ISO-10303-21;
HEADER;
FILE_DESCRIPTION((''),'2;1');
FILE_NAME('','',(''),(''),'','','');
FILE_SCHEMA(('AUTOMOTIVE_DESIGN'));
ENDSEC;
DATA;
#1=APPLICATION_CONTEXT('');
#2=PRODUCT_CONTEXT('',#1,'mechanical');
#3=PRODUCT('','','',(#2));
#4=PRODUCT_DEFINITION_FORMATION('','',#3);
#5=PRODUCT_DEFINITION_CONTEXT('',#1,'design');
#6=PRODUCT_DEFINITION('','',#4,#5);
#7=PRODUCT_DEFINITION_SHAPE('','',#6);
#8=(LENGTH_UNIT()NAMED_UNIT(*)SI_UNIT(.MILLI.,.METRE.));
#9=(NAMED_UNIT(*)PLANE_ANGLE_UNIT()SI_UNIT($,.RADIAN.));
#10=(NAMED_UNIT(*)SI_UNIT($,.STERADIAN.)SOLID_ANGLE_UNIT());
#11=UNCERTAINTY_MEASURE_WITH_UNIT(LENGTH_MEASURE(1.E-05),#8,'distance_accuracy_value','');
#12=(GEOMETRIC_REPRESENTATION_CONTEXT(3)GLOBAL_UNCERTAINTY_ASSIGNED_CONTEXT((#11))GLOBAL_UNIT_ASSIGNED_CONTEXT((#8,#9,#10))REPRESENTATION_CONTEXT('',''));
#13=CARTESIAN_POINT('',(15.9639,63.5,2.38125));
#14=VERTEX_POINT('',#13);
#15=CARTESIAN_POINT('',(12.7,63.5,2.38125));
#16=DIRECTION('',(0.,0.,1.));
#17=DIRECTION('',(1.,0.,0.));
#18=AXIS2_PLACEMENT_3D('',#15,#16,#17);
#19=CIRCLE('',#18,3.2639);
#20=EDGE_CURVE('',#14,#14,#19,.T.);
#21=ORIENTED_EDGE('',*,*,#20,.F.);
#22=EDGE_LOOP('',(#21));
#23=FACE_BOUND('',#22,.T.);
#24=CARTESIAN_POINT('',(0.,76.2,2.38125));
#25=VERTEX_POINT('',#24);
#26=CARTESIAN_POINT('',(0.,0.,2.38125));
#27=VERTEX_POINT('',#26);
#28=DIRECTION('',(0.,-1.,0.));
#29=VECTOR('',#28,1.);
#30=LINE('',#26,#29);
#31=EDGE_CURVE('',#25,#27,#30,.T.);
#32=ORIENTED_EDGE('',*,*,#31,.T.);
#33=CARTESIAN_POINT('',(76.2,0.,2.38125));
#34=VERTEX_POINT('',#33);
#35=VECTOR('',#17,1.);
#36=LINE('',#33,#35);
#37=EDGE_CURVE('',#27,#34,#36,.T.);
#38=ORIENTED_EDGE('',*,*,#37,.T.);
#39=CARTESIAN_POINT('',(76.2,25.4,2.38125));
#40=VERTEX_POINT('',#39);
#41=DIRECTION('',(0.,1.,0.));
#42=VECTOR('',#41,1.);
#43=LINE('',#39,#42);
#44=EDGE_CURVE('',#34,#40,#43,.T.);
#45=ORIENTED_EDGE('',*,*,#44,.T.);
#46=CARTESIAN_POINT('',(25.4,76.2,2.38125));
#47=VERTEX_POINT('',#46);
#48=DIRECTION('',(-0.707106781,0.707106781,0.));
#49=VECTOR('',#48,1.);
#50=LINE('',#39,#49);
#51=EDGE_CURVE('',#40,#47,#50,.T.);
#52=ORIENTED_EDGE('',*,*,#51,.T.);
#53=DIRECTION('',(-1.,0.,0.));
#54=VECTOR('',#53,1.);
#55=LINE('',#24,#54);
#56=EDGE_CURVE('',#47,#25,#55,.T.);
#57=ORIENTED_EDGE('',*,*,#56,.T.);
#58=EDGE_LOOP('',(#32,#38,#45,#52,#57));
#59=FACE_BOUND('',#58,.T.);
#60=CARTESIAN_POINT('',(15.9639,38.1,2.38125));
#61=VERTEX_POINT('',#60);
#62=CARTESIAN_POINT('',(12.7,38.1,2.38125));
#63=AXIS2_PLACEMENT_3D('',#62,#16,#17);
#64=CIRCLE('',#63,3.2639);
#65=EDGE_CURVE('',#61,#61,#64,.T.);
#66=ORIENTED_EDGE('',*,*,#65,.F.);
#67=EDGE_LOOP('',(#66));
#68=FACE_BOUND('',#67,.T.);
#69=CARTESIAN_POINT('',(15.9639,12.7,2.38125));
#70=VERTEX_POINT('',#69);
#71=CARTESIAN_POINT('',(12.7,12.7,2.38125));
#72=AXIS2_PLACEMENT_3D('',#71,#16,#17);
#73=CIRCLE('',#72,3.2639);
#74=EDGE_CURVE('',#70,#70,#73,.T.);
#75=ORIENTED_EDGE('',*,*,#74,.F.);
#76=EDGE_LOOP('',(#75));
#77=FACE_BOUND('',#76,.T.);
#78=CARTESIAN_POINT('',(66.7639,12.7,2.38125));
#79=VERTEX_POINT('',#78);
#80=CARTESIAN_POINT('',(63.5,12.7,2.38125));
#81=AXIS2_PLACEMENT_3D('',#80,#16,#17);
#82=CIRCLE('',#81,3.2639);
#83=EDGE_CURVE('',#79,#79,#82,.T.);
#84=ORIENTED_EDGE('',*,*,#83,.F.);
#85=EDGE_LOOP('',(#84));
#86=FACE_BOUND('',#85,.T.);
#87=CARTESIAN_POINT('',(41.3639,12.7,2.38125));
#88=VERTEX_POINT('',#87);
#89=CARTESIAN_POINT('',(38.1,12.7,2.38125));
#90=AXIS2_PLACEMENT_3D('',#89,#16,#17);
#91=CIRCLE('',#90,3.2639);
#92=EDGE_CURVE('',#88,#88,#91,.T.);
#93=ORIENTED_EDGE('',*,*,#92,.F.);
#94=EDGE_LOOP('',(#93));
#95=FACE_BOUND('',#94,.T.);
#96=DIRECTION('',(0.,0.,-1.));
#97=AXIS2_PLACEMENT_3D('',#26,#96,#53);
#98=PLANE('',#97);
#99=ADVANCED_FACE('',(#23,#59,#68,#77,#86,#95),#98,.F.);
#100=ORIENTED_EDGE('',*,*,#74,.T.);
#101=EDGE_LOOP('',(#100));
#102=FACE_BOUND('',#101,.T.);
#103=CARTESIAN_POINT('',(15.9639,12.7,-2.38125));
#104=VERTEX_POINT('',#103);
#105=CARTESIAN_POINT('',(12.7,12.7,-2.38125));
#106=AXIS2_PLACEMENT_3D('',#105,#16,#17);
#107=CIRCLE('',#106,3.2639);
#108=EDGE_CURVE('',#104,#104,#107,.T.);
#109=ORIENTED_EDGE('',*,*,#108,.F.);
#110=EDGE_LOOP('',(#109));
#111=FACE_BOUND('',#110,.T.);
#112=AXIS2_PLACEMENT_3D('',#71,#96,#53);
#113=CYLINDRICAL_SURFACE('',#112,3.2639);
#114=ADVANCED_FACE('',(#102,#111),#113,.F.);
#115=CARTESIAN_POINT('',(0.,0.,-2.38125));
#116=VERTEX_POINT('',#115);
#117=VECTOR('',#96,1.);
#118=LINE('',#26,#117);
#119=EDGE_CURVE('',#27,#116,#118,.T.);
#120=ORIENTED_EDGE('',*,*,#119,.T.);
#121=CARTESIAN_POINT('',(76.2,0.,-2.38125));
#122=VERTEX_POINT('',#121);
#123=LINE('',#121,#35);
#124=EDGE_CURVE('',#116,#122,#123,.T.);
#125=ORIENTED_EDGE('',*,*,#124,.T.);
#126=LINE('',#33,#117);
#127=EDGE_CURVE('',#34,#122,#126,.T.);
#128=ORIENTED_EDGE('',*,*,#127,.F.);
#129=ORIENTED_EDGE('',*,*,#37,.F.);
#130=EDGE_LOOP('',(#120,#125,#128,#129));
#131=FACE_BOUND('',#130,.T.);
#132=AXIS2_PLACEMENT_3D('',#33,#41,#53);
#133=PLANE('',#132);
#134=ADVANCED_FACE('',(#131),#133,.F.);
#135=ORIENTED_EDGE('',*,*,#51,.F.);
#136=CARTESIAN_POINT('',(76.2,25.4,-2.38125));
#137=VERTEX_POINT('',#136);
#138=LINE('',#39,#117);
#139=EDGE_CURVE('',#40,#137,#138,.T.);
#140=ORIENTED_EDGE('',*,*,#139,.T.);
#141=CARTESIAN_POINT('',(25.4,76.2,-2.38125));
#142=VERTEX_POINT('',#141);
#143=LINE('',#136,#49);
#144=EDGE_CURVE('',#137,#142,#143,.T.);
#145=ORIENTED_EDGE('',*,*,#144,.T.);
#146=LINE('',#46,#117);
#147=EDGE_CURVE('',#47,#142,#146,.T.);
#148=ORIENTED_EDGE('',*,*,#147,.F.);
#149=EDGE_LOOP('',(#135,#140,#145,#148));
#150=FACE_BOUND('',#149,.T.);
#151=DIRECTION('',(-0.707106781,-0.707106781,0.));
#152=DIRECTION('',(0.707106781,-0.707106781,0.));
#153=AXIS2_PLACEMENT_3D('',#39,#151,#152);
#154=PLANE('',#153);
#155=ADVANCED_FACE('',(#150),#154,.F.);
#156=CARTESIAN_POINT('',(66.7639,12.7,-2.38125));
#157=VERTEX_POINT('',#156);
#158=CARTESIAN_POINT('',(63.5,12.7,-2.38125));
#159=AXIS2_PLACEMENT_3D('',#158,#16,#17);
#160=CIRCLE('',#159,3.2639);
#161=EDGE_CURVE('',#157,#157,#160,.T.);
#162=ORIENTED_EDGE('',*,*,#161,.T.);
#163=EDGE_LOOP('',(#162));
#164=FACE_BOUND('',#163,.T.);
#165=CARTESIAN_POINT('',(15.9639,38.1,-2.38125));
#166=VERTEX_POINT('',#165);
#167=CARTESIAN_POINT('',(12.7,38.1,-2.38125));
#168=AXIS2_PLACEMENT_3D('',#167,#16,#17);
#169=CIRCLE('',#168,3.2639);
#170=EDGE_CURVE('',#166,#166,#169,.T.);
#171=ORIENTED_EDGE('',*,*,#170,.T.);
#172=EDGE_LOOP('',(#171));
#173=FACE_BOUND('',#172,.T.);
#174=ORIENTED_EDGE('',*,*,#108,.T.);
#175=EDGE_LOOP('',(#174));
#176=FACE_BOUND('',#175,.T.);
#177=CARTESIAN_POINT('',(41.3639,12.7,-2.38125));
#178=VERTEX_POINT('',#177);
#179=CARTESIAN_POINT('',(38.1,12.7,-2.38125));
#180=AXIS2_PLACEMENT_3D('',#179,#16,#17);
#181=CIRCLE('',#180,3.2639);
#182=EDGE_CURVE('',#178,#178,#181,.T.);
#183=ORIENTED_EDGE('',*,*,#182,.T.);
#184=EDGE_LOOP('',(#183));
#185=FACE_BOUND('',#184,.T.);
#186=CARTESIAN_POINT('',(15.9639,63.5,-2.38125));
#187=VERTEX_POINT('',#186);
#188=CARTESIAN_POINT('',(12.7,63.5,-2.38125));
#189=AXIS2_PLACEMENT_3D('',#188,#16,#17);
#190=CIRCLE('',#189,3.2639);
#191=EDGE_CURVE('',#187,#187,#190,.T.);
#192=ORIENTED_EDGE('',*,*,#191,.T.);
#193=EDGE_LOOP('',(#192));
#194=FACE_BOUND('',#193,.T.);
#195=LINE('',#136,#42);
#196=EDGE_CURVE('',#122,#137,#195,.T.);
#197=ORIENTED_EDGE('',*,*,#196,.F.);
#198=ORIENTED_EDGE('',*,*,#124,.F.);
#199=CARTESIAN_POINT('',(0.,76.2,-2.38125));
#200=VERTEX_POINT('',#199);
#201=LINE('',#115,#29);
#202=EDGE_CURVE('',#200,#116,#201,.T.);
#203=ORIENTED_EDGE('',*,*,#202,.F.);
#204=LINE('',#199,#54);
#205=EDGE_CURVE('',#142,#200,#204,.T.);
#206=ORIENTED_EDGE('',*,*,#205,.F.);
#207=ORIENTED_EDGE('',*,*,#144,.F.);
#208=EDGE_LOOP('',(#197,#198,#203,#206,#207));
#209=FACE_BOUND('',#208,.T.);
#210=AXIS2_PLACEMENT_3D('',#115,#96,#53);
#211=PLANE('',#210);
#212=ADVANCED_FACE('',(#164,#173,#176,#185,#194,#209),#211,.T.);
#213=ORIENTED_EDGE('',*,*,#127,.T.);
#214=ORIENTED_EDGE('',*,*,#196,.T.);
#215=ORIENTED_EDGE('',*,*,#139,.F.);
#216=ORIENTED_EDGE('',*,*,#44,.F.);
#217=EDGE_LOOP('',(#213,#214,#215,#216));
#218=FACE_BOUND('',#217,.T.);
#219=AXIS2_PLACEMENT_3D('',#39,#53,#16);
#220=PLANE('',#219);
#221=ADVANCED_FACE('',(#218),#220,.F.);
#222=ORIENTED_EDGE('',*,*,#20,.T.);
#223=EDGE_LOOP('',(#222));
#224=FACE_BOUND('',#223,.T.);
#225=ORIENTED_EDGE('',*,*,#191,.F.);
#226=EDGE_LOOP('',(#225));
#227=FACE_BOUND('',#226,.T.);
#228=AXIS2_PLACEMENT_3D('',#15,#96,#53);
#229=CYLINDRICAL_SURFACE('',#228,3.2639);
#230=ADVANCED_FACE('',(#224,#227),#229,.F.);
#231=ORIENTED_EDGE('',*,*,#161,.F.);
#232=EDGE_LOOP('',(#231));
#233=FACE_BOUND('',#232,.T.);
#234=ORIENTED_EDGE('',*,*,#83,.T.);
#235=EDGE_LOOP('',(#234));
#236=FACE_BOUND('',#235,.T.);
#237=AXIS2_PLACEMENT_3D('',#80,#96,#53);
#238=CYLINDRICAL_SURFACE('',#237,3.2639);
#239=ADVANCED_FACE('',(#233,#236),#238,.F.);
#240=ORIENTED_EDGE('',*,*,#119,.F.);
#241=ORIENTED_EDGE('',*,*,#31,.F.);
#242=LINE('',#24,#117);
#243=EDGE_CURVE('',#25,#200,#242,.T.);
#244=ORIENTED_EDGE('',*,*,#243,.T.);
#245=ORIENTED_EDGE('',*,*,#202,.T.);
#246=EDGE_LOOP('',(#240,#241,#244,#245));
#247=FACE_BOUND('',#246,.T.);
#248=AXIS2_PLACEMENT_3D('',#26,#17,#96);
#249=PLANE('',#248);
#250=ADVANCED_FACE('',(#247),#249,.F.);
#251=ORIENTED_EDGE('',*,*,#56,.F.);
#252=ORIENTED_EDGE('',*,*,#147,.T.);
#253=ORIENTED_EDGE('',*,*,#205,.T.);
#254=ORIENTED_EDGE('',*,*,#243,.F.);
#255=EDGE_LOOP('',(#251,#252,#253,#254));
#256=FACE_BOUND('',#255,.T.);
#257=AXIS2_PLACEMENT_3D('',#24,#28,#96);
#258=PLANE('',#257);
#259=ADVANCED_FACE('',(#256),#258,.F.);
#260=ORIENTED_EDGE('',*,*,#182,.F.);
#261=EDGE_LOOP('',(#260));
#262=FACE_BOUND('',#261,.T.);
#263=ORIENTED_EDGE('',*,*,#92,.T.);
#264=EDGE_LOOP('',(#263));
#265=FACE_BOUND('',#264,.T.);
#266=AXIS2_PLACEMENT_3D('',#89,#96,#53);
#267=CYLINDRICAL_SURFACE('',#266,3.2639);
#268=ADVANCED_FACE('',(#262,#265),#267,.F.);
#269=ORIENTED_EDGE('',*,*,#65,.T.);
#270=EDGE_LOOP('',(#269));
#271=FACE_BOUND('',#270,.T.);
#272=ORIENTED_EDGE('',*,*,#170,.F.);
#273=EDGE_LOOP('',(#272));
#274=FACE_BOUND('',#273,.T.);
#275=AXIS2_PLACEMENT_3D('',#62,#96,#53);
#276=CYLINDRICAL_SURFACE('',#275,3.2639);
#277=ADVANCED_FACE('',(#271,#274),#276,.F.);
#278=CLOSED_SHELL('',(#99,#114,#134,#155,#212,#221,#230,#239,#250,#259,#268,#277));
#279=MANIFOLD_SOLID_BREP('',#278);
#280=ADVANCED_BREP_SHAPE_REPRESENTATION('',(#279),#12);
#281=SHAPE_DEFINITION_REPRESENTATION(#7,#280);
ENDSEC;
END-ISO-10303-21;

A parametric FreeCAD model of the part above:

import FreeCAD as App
import Part
import Sketcher
Q = App.Units.Quantity

doc = App.newDocument("Part")
body = doc.addObject("PartDesign::Body", "Body")

sketch1 = body.newObject("Sketcher::SketchObject", "Sketch")
sketch1.AttachmentSupport = (doc.getObject("XY_Plane"), [""])
sketch1.MapMode = "FlatFace"
sketch1.addGeometry([
    Part.LineSegment(App.Vector(0, 76.2, 0), App.Vector(0, 0, 0)),
    Part.LineSegment(App.Vector(0, 0, 0), App.Vector(76.2, 0, 0)),
    Part.LineSegment(App.Vector(76.2, 0, 0), App.Vector(76.2, 25.4, 0)),
    Part.LineSegment(App.Vector(76.2, 25.4, 0), App.Vector(25.4, 76.2, 0)),
    Part.LineSegment(App.Vector(25.4, 76.2, 0), App.Vector(0, 76.2, 0)),
    Part.Circle(App.Vector(63.5, 12.7, 0), App.Vector(0, 0, 1), 3.3),
    Part.Circle(App.Vector(38.1, 12.7, 0), App.Vector(0, 0, 1), 3.3),
    Part.Circle(App.Vector(12.7, 12.7, 0), App.Vector(0, 0, 1), 3.3),
    Part.Circle(App.Vector(12.7, 38.1, 0), App.Vector(0, 0, 1), 3.3),
    Part.Circle(App.Vector(12.7, 63.5, 0), App.Vector(0, 0, 1), 3.3),
], False)
sketch1.addConstraint([
    Sketcher.Constraint("Coincident", 0, 2, 1, 1),
    Sketcher.Constraint("Coincident", 1, 2, 2, 1),
    Sketcher.Constraint("Coincident", 2, 2, 3, 1),
    Sketcher.Constraint("Coincident", 3, 2, 4, 1),
    Sketcher.Constraint("Coincident", 4, 2, 0, 1),
    Sketcher.Constraint("Vertical", 0),
    Sketcher.Constraint("Horizontal", 1),
    Sketcher.Constraint("Vertical", 2),
    Sketcher.Constraint("Horizontal", 4),
    Sketcher.Constraint("Coincident", 0, 2, -1, 1),
    Sketcher.Constraint("Equal", 5, 6),
    Sketcher.Constraint("Equal", 6, 7),
    Sketcher.Constraint("Equal", 7, 8),
    Sketcher.Constraint("Equal", 8, 9),
    Sketcher.Constraint("Horizontal", 5, 3, 6, 3),
    Sketcher.Constraint("Horizontal", 6, 3, 7, 3),
    Sketcher.Constraint("Vertical", 7, 3, 8, 3),
    Sketcher.Constraint("Vertical", 8, 3, 9, 3),
    Sketcher.Constraint("Equal", 1, 0),
    Sketcher.Constraint("Equal", 4, 2),
    Sketcher.Constraint("DistanceX", 1, 1, 1, 2, Q("3 in")),
    Sketcher.Constraint("DistanceX", 4, 2, 4, 1, Q("1 in")),
    Sketcher.Constraint("Diameter", 5, Q("0.257 in")),
    Sketcher.Constraint("DistanceX", 6, 3, 5, 3, Q("1 in")),
    Sketcher.Constraint("DistanceX", 7, 3, 6, 3, Q("1 in")),
    Sketcher.Constraint("DistanceY", 7, 3, 8, 3, Q("1 in")),
    Sketcher.Constraint("DistanceY", 8, 3, 9, 3, Q("1 in")),
    Sketcher.Constraint("DistanceX", -1, 1, 5, 3, Q("2.5 in")),
    Sketcher.Constraint("DistanceY", -1, 1, 5, 3, Q("0.5 in")),
])
pad1 = body.newObject("PartDesign::Pad", "Pad")
pad1.Profile = sketch1
pad1.Length = Q("0.1875 in")
pad1.Midplane = True

doc.recompute()
